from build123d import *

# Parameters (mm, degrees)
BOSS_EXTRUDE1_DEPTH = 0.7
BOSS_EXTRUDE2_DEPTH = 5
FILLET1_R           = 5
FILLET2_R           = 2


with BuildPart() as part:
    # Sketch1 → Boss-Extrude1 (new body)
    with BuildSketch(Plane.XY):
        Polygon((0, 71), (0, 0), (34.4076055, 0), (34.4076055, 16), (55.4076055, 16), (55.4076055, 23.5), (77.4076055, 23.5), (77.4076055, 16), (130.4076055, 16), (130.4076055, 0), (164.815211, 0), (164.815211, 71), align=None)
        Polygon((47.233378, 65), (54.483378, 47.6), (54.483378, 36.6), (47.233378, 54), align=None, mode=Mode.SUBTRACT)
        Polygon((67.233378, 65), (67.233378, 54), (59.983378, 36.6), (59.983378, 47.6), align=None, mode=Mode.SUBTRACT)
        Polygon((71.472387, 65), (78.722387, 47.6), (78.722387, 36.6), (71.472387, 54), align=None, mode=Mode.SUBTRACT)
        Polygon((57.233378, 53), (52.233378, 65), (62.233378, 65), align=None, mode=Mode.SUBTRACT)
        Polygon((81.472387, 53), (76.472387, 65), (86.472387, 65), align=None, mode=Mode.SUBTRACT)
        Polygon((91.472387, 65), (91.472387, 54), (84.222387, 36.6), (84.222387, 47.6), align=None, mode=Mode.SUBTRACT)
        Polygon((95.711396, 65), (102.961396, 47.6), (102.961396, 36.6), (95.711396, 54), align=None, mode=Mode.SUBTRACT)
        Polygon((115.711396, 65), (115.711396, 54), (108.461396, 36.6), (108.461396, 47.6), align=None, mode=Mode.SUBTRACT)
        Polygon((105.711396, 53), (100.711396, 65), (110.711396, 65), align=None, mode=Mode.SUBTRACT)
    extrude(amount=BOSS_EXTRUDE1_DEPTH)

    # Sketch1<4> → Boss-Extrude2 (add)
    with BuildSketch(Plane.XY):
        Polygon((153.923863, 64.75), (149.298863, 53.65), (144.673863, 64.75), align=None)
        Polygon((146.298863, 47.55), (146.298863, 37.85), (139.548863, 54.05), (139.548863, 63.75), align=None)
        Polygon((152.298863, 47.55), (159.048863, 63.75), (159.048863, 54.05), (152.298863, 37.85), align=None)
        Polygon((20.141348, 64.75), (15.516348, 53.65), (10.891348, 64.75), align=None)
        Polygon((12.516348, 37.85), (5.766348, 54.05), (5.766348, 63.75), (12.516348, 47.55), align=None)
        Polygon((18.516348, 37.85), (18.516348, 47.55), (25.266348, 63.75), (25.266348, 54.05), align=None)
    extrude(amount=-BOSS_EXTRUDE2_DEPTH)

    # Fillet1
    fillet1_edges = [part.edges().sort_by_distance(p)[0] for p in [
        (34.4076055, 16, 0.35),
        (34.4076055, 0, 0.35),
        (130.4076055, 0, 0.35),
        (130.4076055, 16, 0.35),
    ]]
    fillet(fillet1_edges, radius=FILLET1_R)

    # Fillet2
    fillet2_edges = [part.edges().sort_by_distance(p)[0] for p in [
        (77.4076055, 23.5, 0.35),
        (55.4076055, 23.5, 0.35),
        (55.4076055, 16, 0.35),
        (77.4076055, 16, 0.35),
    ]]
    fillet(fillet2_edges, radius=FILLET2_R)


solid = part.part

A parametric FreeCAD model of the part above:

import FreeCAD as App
import Part
import Sketcher

V = App.Vector
Q = App.Units.Quantity


def edges_at(feature, points):
    """Names of the edges that pass closest to the given points."""
    edges = feature.Shape.Edges
    near = lambda p: min(range(len(edges)), key=lambda i: edges[i].distToShape(Part.Vertex(*p))[0])
    return sorted({f"Edge{near(p) + 1}" for p in points})

doc = App.newDocument("Part")
body = doc.addObject("PartDesign::Body", "Body")

# Sketch on XY plane
sketch1 = doc.addObject("Sketcher::SketchObject", "Sketch")
body.addObject(sketch1)
sketch1.AttachmentSupport = (doc.XY_Plane, [""])
sketch1.MapMode = "FlatFace"
sketch1.addGeometry([
    Part.LineSegment(V(0, 71, 0), V(0, 0, 0)),  # 0
    Part.LineSegment(V(0, 0, 0), V(34.407606, 0, 0)),  # 1
    Part.LineSegment(V(34.407606, 0, 0), V(34.407606, 16, 0)),  # 2
    Part.LineSegment(V(34.407606, 16, 0), V(55.407606, 16, 0)),  # 3
    Part.LineSegment(V(55.407606, 16, 0), V(55.407606, 23.5, 0)),  # 4
    Part.LineSegment(V(55.407606, 23.5, 0), V(77.407606, 23.5, 0)),  # 5
    Part.LineSegment(V(77.407606, 23.5, 0), V(77.407606, 16, 0)),  # 6
    Part.LineSegment(V(77.407606, 16, 0), V(130.407605, 16, 0)),  # 7
    Part.LineSegment(V(130.407605, 16, 0), V(130.407605, 0, 0)),  # 8
    Part.LineSegment(V(130.407605, 0, 0), V(164.815211, 0, 0)),  # 9
    Part.LineSegment(V(164.815211, 0, 0), V(164.815211, 71, 0)),  # 10
    Part.LineSegment(V(164.815211, 71, 0), V(0, 71, 0)),  # 11
    Part.LineSegment(V(47.233378, 54, 0), V(47.233378, 65, 0)),  # 12
    Part.LineSegment(V(47.233378, 65, 0), V(54.483378, 47.6, 0)),  # 13
    Part.LineSegment(V(54.483378, 47.6, 0), V(54.483378, 36.6, 0)),  # 14
    Part.LineSegment(V(54.483378, 36.6, 0), V(47.233378, 54, 0)),  # 15
    Part.LineSegment(V(59.983378, 47.6, 0), V(67.233378, 65, 0)),  # 16
    Part.LineSegment(V(67.233378, 65, 0), V(67.233378, 54, 0)),  # 17
    Part.LineSegment(V(67.233378, 54, 0), V(59.983378, 36.6, 0)),  # 18
    Part.LineSegment(V(59.983378, 36.6, 0), V(59.983378, 47.6, 0)),  # 19
    Part.LineSegment(V(71.472387, 54, 0), V(71.472387, 65, 0)),  # 20
    Part.LineSegment(V(71.472387, 65, 0), V(78.722387, 47.6, 0)),  # 21
    Part.LineSegment(V(78.722387, 47.6, 0), V(78.722387, 36.6, 0)),  # 22
    Part.LineSegment(V(78.722387, 36.6, 0), V(71.472387, 54, 0)),  # 23
    Part.LineSegment(V(62.233378, 65, 0), V(57.233378, 53, 0)),  # 24
    Part.LineSegment(V(57.233378, 53, 0), V(52.233378, 65, 0)),  # 25
    Part.LineSegment(V(52.233378, 65, 0), V(62.233378, 65, 0)),  # 26
    Part.LineSegment(V(84.222387, 47.6, 0), V(91.472387, 65, 0)),  # 27
    Part.LineSegment(V(91.472387, 65, 0), V(91.472387, 54, 0)),  # 28
    Part.LineSegment(V(91.472387, 54, 0), V(84.222387, 36.6, 0)),  # 29
    Part.LineSegment(V(84.222387, 36.6, 0), V(84.222387, 47.6, 0)),  # 30
    Part.LineSegment(V(95.711396, 54, 0), V(95.711396, 65, 0)),  # 31
    Part.LineSegment(V(95.711396, 65, 0), V(102.961396, 47.6, 0)),  # 32
    Part.LineSegment(V(102.961396, 47.6, 0), V(102.961396, 36.6, 0)),  # 33
    Part.LineSegment(V(102.961396, 36.6, 0), V(95.711396, 54, 0)),  # 34
    Part.LineSegment(V(108.461396, 47.6, 0), V(115.711396, 65, 0)),  # 35
    Part.LineSegment(V(115.711396, 65, 0), V(115.711396, 54, 0)),  # 36
    Part.LineSegment(V(115.711396, 54, 0), V(108.461396, 36.6, 0)),  # 37
    Part.LineSegment(V(108.461396, 36.6, 0), V(108.461396, 47.6, 0)),  # 38
    Part.LineSegment(V(86.472387, 65, 0), V(81.472387, 53, 0)),  # 39
    Part.LineSegment(V(81.472387, 53, 0), V(76.472387, 65, 0)),  # 40
    Part.LineSegment(V(76.472387, 65, 0), V(86.472387, 65, 0)),  # 41
    Part.LineSegment(V(110.711396, 65, 0), V(105.711396, 53, 0)),  # 42
    Part.LineSegment(V(105.711396, 53, 0), V(100.711396, 65, 0)),  # 43
    Part.LineSegment(V(100.711396, 65, 0), V(110.711396, 65, 0)),  # 44
], False)
sketch1.addConstraint([
    Sketcher.Constraint("Coincident", 0, 2, 1, 1),
    Sketcher.Constraint("Coincident", 1, 2, 2, 1),
    Sketcher.Constraint("Coincident", 2, 2, 3, 1),
    Sketcher.Constraint("Coincident", 3, 2, 4, 1),
    Sketcher.Constraint("Coincident", 4, 2, 5, 1),
    Sketcher.Constraint("Coincident", 5, 2, 6, 1),
    Sketcher.Constraint("Coincident", 6, 2, 7, 1),
    Sketcher.Constraint("Coincident", 7, 2, 8, 1),
    Sketcher.Constraint("Coincident", 8, 2, 9, 1),
    Sketcher.Constraint("Coincident", 9, 2, 10, 1),
    Sketcher.Constraint("Coincident", 10, 2, 11, 1),
    Sketcher.Constraint("Coincident", 11, 2, 0, 1),
    Sketcher.Constraint("Coincident", 12, 2, 13, 1),
    Sketcher.Constraint("Coincident", 13, 2, 14, 1),
    Sketcher.Constraint("Coincident", 14, 2, 15, 1),
    Sketcher.Constraint("Coincident", 15, 2, 12, 1),
    Sketcher.Constraint("Coincident", 16, 2, 17, 1),
    Sketcher.Constraint("Coincident", 17, 2, 18, 1),
    Sketcher.Constraint("Coincident", 18, 2, 19, 1),
    Sketcher.Constraint("Coincident", 19, 2, 16, 1),
    Sketcher.Constraint("Coincident", 20, 2, 21, 1),
    Sketcher.Constraint("Coincident", 21, 2, 22, 1),
    Sketcher.Constraint("Coincident", 22, 2, 23, 1),
    Sketcher.Constraint("Coincident", 23, 2, 20, 1),
    Sketcher.Constraint("Coincident", 24, 2, 25, 1),
    Sketcher.Constraint("Coincident", 25, 2, 26, 1),
    Sketcher.Constraint("Coincident", 26, 2, 24, 1),
    Sketcher.Constraint("Coincident", 27, 2, 28, 1),
    Sketcher.Constraint("Coincident", 28, 2, 29, 1),
    Sketcher.Constraint("Coincident", 29, 2, 30, 1),
    Sketcher.Constraint("Coincident", 30, 2, 27, 1),
    Sketcher.Constraint("Coincident", 31, 2, 32, 1),
    Sketcher.Constraint("Coincident", 32, 2, 33, 1),
    Sketcher.Constraint("Coincident", 33, 2, 34, 1),
    Sketcher.Constraint("Coincident", 34, 2, 31, 1),
    Sketcher.Constraint("Coincident", 35, 2, 36, 1),
    Sketcher.Constraint("Coincident", 36, 2, 37, 1),
    Sketcher.Constraint("Coincident", 37, 2, 38, 1),
    Sketcher.Constraint("Coincident", 38, 2, 35, 1),
    Sketcher.Constraint("Coincident", 39, 2, 40, 1),
    Sketcher.Constraint("Coincident", 40, 2, 41, 1),
    Sketcher.Constraint("Coincident", 41, 2, 39, 1),
    Sketcher.Constraint("Coincident", 42, 2, 43, 1),
    Sketcher.Constraint("Coincident", 43, 2, 44, 1),
    Sketcher.Constraint("Coincident", 44, 2, 42, 1),
    Sketcher.Constraint("Vertical", 0),
    Sketcher.Constraint("Horizontal", 1),
    Sketcher.Constraint("Vertical", 2),
    Sketcher.Constraint("Horizontal", 3),
    Sketcher.Constraint("Vertical", 4),
    Sketcher.Constraint("Horizontal", 5),
    Sketcher.Constraint("Vertical", 6),
    Sketcher.Constraint("Horizontal", 7),
    Sketcher.Constraint("Vertical", 8),
    Sketcher.Constraint("Horizontal", 9),
    Sketcher.Constraint("Vertical", 10),
    Sketcher.Constraint("Horizontal", 11),
    Sketcher.Constraint("Vertical", 12),
    Sketcher.Constraint("Vertical", 14),
    Sketcher.Constraint("Vertical", 17),
    Sketcher.Constraint("Vertical", 19),
    Sketcher.Constraint("Vertical", 20),
    Sketcher.Constraint("Vertical", 22),
    Sketcher.Constraint("Horizontal", 26),
    Sketcher.Constraint("Vertical", 28),
    Sketcher.Constraint("Vertical", 30),
    Sketcher.Constraint("Vertical", 31),
    Sketcher.Constraint("Vertical", 33),
    Sketcher.Constraint("Vertical", 36),
    Sketcher.Constraint("Vertical", 38),
    Sketcher.Constraint("Horizontal", 41),
    Sketcher.Constraint("Horizontal", 44),
    Sketcher.Constraint("Coincident", 0, 2, -1, 1),
    Sketcher.Constraint("PointOnObject", 8, 2, -1),
    Sketcher.Constraint("Parallel", 13, 15),
    Sketcher.Constraint("Parallel", 16, 18),
    Sketcher.Constraint("Parallel", 15, 21),
    Sketcher.Constraint("Parallel", 21, 23),
    Sketcher.Constraint("Parallel", 18, 24),
    Sketcher.Constraint("Parallel", 23, 25),
    Sketcher.Constraint("Parallel", 24, 27),
    Sketcher.Constraint("Parallel", 27, 29),
    Sketcher.Constraint("Parallel", 25, 32),
    Sketcher.Constraint("Parallel", 32, 34),
    Sketcher.Constraint("Parallel", 29, 35),
    Sketcher.Constraint("Parallel", 35, 37),
    Sketcher.Constraint("Parallel", 37, 39),
    Sketcher.Constraint("Parallel", 34, 40),
    Sketcher.Constraint("Parallel", 39, 42),
    Sketcher.Constraint("Parallel", 40, 43),
    Sketcher.Constraint("Horizontal", 3, 2, 6, 2),
    Sketcher.Constraint("Horizontal", 12, 2, 16, 2),
    Sketcher.Constraint("Horizontal", 15, 2, 17, 2),
    Sketcher.Constraint("Horizontal", 14, 2, 18, 2),
    Sketcher.Constraint("Horizontal", 16, 2, 20, 2),
    Sketcher.Constraint("Horizontal", 19, 2, 21, 2),
    Sketcher.Constraint("Horizontal", 18, 2, 22, 2),
    Sketcher.Constraint("Horizontal", 20, 2, 25, 2),
    Sketcher.Constraint("Horizontal", 26, 2, 27, 2),
    Sketcher.Constraint("Horizontal", 23, 2, 28, 2),
    Sketcher.Constraint("Horizontal", 22, 2, 29, 2),
    Sketcher.Constraint("Horizontal", 27, 2, 31, 2),
    Sketcher.Constraint("Horizontal", 30, 2, 32, 2),
    Sketcher.Constraint("Horizontal", 29, 2, 33, 2),
    Sketcher.Constraint("Horizontal", 31, 2, 35, 2),
    Sketcher.Constraint("Horizontal", 34, 2, 36, 2),
    Sketcher.Constraint("Horizontal", 33, 2, 37, 2),
    Sketcher.Constraint("Horizontal", 24, 2, 39, 2),
    Sketcher.Constraint("Horizontal", 35, 2, 40, 2),
    Sketcher.Constraint("Horizontal", 39, 2, 42, 2),
    Sketcher.Constraint("Horizontal", 41, 2, 43, 2),
    Sketcher.Constraint("Equal", 1, 9),
    Sketcher.Constraint("Equal", 15, 16),
    Sketcher.Constraint("DistanceX", 3, 1, 3, 2, Q("21 mm")),
    Sketcher.Constraint("DistanceX", 5, 1, 5, 2, Q("22 mm")),
    Sketcher.Constraint("DistanceX", 7, 1, 7, 2, Q("53 mm")),
    Sketcher.Constraint("DistanceX", 26, 1, 26, 2, Q("10 mm")),
    Sketcher.Constraint("DistanceY", 0, 2, 0, 1, Q("71 mm")),
    Sketcher.Constraint("DistanceY", 2, 1, 2, 2, Q("16 mm")),
    Sketcher.Constraint("DistanceY", 12, 1, 12, 2, Q("11 mm")),
    Sketcher.Constraint("Distance", 24, Q("13 mm")),
    Sketcher.Constraint("DistanceY", 4, 1, 4, 2, Q("7.5 mm")),
    Sketcher.Constraint("DistanceY", -1, 1, 12, 2, Q("65 mm")),
    Sketcher.Constraint("DistanceX", 12, 2, 16, 2, Q("20 mm")),
    Sketcher.Constraint("DistanceX", 15, 2, 24, 2, Q("10 mm")),
    Sketcher.Constraint("DistanceX", 20, 2, 27, 2, Q("20 mm")),
    Sketcher.Constraint("DistanceX", 31, 2, 35, 2, Q("20 mm")),
    Sketcher.Constraint("DistanceX", 23, 2, 39, 2, Q("10 mm")),
    Sketcher.Constraint("DistanceX", 34, 2, 42, 2, Q("10 mm")),
    Sketcher.Constraint("DistanceY", -1, 1, 13, 2, Q("47.6 mm")),
    Sketcher.Constraint("DistanceX", 11, 2, 11, 1, Q("164.815211 mm")),
    Sketcher.Constraint("DistanceX", -1, 1, 12, 2, Q("47.233378 mm")),
    Sketcher.Constraint("DistanceX", 16, 2, 20, 2, Q("4.239009 mm")),
    Sketcher.Constraint("DistanceX", 27, 2, 31, 2, Q("4.239009 mm")),
])
pad1 = doc.addObject("PartDesign::Pad", "Pad")
body.addObject(pad1)
pad1.Profile = sketch1
pad1.Length = 0.7

# Sketch on XY plane
sketch2 = doc.addObject("Sketcher::SketchObject", "Sketch001")
body.addObject(sketch2)
sketch2.AttachmentSupport = (doc.XY_Plane, [""])
sketch2.MapMode = "FlatFace"
sketch2.addGeometry([
    Part.LineSegment(V(149.298863, 53.65, 0), V(153.923863, 64.75, 0)),  # 0
    Part.LineSegment(V(153.923863, 64.75, 0), V(144.673863, 64.75, 0)),  # 1
    Part.LineSegment(V(144.673863, 64.75, 0), V(149.298863, 53.65, 0)),  # 2
    Part.LineSegment(V(146.298863, 37.85, 0), V(146.298863, 47.55, 0)),  # 3
    Part.LineSegment(V(146.298863, 47.55, 0), V(139.548863, 63.75, 0)),  # 4
    Part.LineSegment(V(139.548863, 63.75, 0), V(139.548863, 54.05, 0)),  # 5
    Part.LineSegment(V(139.548863, 54.05, 0), V(146.298863, 37.85, 0)),  # 6
    Part.LineSegment(V(159.048863, 63.75, 0), V(152.298863, 47.55, 0)),  # 7
    Part.LineSegment(V(152.298863, 47.55, 0), V(152.298863, 37.85, 0)),  # 8
    Part.LineSegment(V(152.298863, 37.85, 0), V(159.048863, 54.05, 0)),  # 9
    Part.LineSegment(V(159.048863, 54.05, 0), V(159.048863, 63.75, 0)),  # 10
    Part.LineSegment(V(15.516348, 53.65, 0), V(20.141348, 64.75, 0)),  # 11
    Part.LineSegment(V(20.141348, 64.75, 0), V(10.891348, 64.75, 0)),  # 12
    Part.LineSegment(V(10.891348, 64.75, 0), V(15.516348, 53.65, 0)),  # 13
    Part.LineSegment(V(5.766348, 54.05, 0), V(12.516348, 37.85, 0)),  # 14
    Part.LineSegment(V(12.516348, 37.85, 0), V(12.516348, 47.55, 0)),  # 15
    Part.LineSegment(V(12.516348, 47.55, 0), V(5.766348, 63.75, 0)),  # 16
    Part.LineSegment(V(5.766348, 63.75, 0), V(5.766348, 54.05, 0)),  # 17
    Part.LineSegment(V(18.516348, 47.55, 0), V(18.516348, 37.85, 0)),  # 18
    Part.LineSegment(V(18.516348, 37.85, 0), V(25.266348, 54.05, 0)),  # 19
    Part.LineSegment(V(25.266348, 54.05, 0), V(25.266348, 63.75, 0)),  # 20
    Part.LineSegment(V(25.266348, 63.75, 0), V(18.516348, 47.55, 0)),  # 21
], False)
sketch2.addConstraint([
    Sketcher.Constraint("Coincident", 0, 2, 1, 1),
    Sketcher.Constraint("Coincident", 1, 2, 2, 1),
    Sketcher.Constraint("Coincident", 2, 2, 0, 1),
    Sketcher.Constraint("Coincident", 3, 2, 4, 1),
    Sketcher.Constraint("Coincident", 4, 2, 5, 1),
    Sketcher.Constraint("Coincident", 5, 2, 6, 1),
    Sketcher.Constraint("Coincident", 6, 2, 3, 1),
    Sketcher.Constraint("Coincident", 7, 2, 8, 1),
    Sketcher.Constraint("Coincident", 8, 2, 9, 1),
    Sketcher.Constraint("Coincident", 9, 2, 10, 1),
    Sketcher.Constraint("Coincident", 10, 2, 7, 1),
    Sketcher.Constraint("Coincident", 11, 2, 12, 1),
    Sketcher.Constraint("Coincident", 12, 2, 13, 1),
    Sketcher.Constraint("Coincident", 13, 2, 11, 1),
    Sketcher.Constraint("Coincident", 14, 2, 15, 1),
    Sketcher.Constraint("Coincident", 15, 2, 16, 1),
    Sketcher.Constraint("Coincident", 16, 2, 17, 1),
    Sketcher.Constraint("Coincident", 17, 2, 14, 1),
    Sketcher.Constraint("Coincident", 18, 2, 19, 1),
    Sketcher.Constraint("Coincident", 19, 2, 20, 1),
    Sketcher.Constraint("Coincident", 20, 2, 21, 1),
    Sketcher.Constraint("Coincident", 21, 2, 18, 1),
    Sketcher.Constraint("Horizontal", 1),
    Sketcher.Constraint("Vertical", 3),
    Sketcher.Constraint("Vertical", 5),
    Sketcher.Constraint("Vertical", 8),
    Sketcher.Constraint("Vertical", 10),
    Sketcher.Constraint("Horizontal", 12),
    Sketcher.Constraint("Vertical", 15),
    Sketcher.Constraint("Vertical", 17),
    Sketcher.Constraint("Vertical", 18),
    Sketcher.Constraint("Vertical", 20),
    Sketcher.Constraint("Parallel", 2, 4),
    Sketcher.Constraint("Parallel", 4, 6),
    Sketcher.Constraint("Parallel", 0, 7),
    Sketcher.Constraint("Parallel", 7, 9),
    Sketcher.Constraint("Parallel", 9, 11),
    Sketcher.Constraint("Parallel", 6, 13),
    Sketcher.Constraint("Parallel", 13, 14),
    Sketcher.Constraint("Parallel", 14, 16),
    Sketcher.Constraint("Parallel", 11, 19),
    Sketcher.Constraint("Parallel", 19, 21),
    Sketcher.Constraint("Horizontal", 3, 2, 7, 2),
    Sketcher.Constraint("Horizontal", 6, 2, 8, 2),
    Sketcher.Constraint("Horizontal", 5, 2, 9, 2),
    Sketcher.Constraint("Horizontal", 1, 2, 11, 2),
    Sketcher.Constraint("Horizontal", 2, 2, 13, 2),
    Sketcher.Constraint("Horizontal", 8, 2, 14, 2),
    Sketcher.Constraint("Horizontal", 7, 2, 15, 2),
    Sketcher.Constraint("Horizontal", 10, 2, 16, 2),
    Sketcher.Constraint("Horizontal", 14, 2, 18, 2),
    Sketcher.Constraint("Horizontal", 17, 2, 19, 2),
    Sketcher.Constraint("Horizontal", 16, 2, 20, 2),
    Sketcher.Constraint("Equal", 0, 2),
    Sketcher.Constraint("DistanceY", 3, 1, 3, 2, Q("9.7 mm")),
    Sketcher.Constraint("DistanceX", 3, 2, 2, 2, Q("3 mm")),
    Sketcher.Constraint("DistanceY", 4, 2, 1, 2, Q("1 mm")),
    Sketcher.Constraint("DistanceX", 3, 2, 7, 2, Q("6 mm")),
    Sketcher.Constraint("DistanceX", 14, 2, 13, 2, Q("3 mm")),
    Sketcher.Constraint("DistanceX", 14, 2, 18, 2, Q("6 mm")),
    Sketcher.Constraint("DistanceX", 1, 2, 1, 1, Q("9.25 mm")),
    Sketcher.Constraint("DistanceY", 2, 2, 0, 2, Q("11.1 mm")),
    Sketcher.Constraint("DistanceY", 3, 2, 2, 2, Q("6.1 mm")),
    Sketcher.Constraint("DistanceY", -1, 1, 0, 2, Q("64.75 mm")),
    Sketcher.Constraint("DistanceX", -1, 1, 11, 2, Q("20.141348 mm")),
    Sketcher.Constraint("DistanceX", -1, 1, 0, 2, Q("153.923863 mm")),
])
pad2 = doc.addObject("PartDesign::Pad", "Pad001")
body.addObject(pad2)
pad2.Profile = sketch2
pad2.Length = 5
pad2.Reversed = True
doc.recompute()

fillet = doc.addObject("PartDesign::Fillet", "Fillet")
body.addObject(fillet)
fillet.Base = (pad2, edges_at(pad2, [
    (34.408, 16, 0.35),
    (34.408, 0, 0.35),
    (130.408, 0, 0.35),
    (130.408, 16, 0.35),
]))
fillet.Radius = 5
doc.recompute()

fillet2 = doc.addObject("PartDesign::Fillet", "Fillet001")
body.addObject(fillet2)
fillet2.Base = (fillet, edges_at(fillet, [
    (77.408, 23.5, 0.35),
    (55.408, 23.5, 0.35),
    (55.408, 16, 0.35),
    (77.408, 16, 0.35),
]))
fillet2.Radius = 2

doc.recompute()
